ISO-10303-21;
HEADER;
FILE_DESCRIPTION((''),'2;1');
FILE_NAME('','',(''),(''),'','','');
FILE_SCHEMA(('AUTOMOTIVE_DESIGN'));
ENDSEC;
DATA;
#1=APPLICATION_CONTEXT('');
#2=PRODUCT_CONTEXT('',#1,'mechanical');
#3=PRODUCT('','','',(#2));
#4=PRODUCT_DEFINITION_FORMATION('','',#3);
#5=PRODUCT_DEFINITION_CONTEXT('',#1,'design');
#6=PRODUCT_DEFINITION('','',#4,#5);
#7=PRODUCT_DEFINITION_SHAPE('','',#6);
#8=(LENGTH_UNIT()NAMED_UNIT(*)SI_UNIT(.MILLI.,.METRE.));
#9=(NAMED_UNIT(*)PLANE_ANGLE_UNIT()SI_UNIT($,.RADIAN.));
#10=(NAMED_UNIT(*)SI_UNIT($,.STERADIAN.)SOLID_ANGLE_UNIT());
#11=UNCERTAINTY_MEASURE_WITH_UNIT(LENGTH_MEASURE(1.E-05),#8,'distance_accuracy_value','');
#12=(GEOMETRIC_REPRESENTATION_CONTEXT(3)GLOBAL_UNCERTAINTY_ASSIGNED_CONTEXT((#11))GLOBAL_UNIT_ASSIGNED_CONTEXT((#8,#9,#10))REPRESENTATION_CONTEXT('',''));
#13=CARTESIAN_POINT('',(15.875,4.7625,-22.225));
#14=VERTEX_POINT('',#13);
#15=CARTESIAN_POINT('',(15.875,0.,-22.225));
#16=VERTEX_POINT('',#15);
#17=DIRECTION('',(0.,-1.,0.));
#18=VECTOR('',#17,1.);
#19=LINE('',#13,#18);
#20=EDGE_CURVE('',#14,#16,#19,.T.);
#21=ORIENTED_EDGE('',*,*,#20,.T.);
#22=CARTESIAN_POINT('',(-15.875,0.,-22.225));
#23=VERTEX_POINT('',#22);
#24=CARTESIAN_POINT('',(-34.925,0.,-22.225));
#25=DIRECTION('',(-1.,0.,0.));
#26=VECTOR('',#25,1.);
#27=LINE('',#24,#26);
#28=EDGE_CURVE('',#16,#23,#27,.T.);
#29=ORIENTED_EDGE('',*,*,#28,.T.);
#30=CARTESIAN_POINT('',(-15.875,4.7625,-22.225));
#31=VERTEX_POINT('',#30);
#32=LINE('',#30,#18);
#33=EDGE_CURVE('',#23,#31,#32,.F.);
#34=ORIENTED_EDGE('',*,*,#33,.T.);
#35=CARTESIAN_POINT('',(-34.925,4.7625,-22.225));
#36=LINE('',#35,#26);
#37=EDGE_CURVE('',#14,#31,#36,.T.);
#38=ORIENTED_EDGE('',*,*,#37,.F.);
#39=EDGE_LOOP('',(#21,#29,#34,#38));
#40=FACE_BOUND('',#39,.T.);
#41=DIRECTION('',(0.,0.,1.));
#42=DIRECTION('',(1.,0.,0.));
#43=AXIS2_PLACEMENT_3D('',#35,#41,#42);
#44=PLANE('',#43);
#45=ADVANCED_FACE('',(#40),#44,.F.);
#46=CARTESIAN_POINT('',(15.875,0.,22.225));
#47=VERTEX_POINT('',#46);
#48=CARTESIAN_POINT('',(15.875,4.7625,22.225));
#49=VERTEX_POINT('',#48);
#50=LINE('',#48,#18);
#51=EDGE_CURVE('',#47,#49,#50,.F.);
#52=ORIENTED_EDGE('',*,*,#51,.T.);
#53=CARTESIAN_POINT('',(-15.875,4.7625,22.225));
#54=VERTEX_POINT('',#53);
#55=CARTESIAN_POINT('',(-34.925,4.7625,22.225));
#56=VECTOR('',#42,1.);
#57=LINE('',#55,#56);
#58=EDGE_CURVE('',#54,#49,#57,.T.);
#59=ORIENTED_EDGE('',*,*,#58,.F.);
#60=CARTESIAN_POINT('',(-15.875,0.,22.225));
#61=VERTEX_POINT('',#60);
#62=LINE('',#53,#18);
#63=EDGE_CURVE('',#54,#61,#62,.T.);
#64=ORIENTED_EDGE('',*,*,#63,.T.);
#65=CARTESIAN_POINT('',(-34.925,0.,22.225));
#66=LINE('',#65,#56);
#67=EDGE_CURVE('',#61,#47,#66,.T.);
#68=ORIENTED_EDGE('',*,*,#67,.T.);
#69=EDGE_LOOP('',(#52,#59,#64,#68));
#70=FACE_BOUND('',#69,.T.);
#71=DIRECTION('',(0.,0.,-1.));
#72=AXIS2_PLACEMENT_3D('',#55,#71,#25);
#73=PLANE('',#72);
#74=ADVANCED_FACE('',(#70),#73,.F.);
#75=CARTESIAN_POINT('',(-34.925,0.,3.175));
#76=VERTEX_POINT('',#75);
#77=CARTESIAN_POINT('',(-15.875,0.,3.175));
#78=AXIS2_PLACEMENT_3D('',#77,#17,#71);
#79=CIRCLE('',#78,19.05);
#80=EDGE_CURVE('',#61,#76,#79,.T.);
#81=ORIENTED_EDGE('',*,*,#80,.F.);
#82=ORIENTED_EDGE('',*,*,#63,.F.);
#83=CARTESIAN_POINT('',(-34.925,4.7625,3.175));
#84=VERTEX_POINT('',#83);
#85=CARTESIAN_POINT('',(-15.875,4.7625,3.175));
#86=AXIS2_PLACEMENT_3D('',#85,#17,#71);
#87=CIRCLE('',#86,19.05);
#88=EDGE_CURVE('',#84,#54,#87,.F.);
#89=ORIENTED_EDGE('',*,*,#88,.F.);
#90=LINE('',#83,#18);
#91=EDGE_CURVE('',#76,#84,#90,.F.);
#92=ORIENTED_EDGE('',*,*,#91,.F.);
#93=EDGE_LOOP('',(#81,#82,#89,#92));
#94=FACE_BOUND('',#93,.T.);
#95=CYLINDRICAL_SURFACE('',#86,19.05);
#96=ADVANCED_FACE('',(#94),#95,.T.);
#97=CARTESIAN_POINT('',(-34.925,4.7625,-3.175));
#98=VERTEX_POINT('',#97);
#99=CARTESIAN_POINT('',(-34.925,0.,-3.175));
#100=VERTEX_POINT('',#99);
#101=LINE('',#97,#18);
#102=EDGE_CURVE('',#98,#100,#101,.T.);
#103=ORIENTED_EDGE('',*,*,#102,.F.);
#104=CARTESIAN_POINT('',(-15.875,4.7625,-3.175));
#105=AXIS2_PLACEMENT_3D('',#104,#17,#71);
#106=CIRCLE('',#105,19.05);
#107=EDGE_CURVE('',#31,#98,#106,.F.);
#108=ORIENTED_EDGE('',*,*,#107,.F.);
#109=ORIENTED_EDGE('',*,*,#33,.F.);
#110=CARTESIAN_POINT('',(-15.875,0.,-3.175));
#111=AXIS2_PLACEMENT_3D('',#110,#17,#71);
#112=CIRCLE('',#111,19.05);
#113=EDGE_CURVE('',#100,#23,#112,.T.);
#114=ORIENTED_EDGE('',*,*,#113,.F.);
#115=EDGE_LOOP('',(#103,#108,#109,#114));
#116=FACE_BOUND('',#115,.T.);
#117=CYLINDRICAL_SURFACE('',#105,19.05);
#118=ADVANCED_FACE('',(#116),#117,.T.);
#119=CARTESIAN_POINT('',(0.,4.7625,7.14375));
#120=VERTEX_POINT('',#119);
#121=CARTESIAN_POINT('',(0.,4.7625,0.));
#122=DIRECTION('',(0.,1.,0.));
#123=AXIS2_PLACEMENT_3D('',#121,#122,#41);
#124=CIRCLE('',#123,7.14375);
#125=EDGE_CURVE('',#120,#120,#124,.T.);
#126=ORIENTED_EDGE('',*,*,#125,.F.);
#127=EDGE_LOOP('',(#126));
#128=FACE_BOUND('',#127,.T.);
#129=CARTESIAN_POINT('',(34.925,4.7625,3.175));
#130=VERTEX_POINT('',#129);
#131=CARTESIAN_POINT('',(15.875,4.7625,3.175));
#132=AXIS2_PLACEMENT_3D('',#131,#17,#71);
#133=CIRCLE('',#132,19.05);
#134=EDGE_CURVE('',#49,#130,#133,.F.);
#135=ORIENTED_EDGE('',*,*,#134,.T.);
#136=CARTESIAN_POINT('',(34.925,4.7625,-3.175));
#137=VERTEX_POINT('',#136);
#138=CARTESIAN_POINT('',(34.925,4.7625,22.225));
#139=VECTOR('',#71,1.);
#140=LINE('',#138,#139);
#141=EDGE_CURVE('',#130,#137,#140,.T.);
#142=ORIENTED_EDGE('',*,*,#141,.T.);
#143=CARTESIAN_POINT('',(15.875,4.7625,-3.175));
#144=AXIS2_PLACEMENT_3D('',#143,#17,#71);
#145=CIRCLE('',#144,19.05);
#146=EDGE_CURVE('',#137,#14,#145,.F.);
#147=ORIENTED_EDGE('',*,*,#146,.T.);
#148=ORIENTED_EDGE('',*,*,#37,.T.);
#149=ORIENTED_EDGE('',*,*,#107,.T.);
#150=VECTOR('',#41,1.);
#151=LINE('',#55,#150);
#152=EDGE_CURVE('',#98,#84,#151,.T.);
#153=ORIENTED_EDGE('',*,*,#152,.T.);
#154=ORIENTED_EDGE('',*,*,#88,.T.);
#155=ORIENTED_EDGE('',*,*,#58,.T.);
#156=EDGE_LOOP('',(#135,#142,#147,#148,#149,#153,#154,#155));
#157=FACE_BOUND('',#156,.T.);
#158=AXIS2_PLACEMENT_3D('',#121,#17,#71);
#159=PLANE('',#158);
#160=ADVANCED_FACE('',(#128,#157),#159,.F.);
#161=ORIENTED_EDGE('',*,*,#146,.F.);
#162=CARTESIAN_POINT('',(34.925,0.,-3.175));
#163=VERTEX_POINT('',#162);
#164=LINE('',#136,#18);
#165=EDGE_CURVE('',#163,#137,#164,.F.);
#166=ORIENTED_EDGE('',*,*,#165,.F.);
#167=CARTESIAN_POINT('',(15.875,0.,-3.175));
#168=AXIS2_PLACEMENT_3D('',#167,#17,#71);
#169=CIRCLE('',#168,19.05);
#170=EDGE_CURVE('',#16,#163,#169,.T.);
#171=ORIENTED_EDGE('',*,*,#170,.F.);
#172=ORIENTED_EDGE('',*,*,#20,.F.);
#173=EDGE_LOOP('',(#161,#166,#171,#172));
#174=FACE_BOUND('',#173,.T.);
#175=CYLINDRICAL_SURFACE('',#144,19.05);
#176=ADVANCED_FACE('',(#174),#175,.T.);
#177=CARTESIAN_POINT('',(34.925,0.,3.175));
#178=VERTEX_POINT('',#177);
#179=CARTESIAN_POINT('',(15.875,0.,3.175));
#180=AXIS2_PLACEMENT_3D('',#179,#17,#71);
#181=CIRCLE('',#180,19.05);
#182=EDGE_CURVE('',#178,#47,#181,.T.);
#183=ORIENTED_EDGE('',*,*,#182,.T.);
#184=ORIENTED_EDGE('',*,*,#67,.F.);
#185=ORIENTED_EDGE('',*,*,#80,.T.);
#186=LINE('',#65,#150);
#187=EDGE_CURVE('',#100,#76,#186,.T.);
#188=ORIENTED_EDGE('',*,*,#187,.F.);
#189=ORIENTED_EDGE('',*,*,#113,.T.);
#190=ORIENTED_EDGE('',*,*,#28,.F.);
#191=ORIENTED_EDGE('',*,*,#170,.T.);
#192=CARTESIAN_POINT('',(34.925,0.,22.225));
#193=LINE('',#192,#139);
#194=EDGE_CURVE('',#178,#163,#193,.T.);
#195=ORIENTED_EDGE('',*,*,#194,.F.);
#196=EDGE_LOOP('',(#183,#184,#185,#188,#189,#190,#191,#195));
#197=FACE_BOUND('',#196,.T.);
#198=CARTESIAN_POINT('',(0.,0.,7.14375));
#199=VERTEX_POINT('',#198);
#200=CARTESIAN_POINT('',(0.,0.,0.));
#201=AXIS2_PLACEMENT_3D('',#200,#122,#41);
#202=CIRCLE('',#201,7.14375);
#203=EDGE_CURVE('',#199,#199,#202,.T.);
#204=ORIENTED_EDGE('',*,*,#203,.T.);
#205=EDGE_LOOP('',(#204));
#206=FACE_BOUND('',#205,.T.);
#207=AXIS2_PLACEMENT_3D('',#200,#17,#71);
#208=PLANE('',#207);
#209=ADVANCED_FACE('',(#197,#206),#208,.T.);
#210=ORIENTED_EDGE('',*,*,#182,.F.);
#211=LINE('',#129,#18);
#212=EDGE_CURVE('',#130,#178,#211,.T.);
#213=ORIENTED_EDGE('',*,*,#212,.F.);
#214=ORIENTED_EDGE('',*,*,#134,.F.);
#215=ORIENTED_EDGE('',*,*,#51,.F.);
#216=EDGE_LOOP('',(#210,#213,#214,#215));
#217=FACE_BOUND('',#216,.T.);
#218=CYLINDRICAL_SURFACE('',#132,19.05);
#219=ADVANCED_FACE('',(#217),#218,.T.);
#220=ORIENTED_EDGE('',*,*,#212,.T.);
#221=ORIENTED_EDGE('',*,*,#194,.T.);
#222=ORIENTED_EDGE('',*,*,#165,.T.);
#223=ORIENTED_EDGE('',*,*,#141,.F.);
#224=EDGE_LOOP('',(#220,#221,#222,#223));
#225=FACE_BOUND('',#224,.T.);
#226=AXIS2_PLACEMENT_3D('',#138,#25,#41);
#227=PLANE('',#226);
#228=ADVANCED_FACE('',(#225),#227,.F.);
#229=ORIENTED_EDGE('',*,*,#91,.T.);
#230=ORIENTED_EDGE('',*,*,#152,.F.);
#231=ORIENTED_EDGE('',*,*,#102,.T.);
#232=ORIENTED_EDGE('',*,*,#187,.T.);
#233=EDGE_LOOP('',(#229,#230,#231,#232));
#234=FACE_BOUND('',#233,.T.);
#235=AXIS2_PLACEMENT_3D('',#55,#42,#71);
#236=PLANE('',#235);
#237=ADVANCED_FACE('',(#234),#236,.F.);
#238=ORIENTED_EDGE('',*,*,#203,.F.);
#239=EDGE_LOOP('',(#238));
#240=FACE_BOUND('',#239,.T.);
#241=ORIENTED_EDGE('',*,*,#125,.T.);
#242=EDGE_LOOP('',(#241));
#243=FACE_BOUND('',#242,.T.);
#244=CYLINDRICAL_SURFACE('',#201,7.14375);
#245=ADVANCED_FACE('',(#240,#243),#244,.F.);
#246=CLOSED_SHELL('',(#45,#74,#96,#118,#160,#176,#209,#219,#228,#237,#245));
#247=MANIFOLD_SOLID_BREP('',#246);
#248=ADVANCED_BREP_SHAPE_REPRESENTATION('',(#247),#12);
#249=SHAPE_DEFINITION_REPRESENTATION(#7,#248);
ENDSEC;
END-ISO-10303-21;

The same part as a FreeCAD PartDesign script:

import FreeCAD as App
import Part
import Sketcher
Q = App.Units.Quantity


def edges_at(feature, points):
    """Names of the edges that pass closest to the given points."""
    edges = feature.Shape.Edges
    near = lambda p: min(range(len(edges)), key=lambda i: edges[i].distToShape(Part.Vertex(*p))[0])
    return sorted({f"Edge{near(p) + 1}" for p in points})


def add_polygon(sketch, points):
    """Adds a closed chain of lines whose ends are joined by coincident constraints."""
    first, n = sketch.GeometryCount, len(points)
    for a, b in zip(points, points[1:] + points[:1]):
        sketch.addGeometry(Part.LineSegment(App.Vector(*a, 0), App.Vector(*b, 0)), False)
    for i in range(n):
        sketch.addConstraint(Sketcher.Constraint("Coincident", first + i, 2, first + (i + 1) % n, 1))

doc = App.newDocument("Part")
params = doc.addObject("Spreadsheet::Sheet", "Params")
for row, (alias, value) in enumerate([
    ("sketch1_width", "2.75 in"),
    ("sketch1_height", "1.75 in"),
    ("pad1_length", "0.1875 in"),
    ("sketch2_diameter", "0.5625 in"),
    ("fillet_radius", "0.75 in"),
    ("fillet2_radius", "0.75 in"),
], start=1):
    params.set(f"A{row}", alias)
    params.set(f"B{row}", "=" + value)
    params.setAlias(f"B{row}", alias)

body = doc.addObject("PartDesign::Body", "Body")

# Sketch on XZ plane
sketch1 = body.newObject("Sketcher::SketchObject", "Sketch")
sketch1.AttachmentSupport = (doc.getObject("XZ_Plane"), [""])
sketch1.MapMode = "FlatFace"
add_polygon(sketch1, [(-35, -22), (-35, 22), (35, 22), (35, -22)])  # lines 0-3
sketch1.addConstraint([
    Sketcher.Constraint("Vertical", 0),
    Sketcher.Constraint("Horizontal", 1),
    Sketcher.Constraint("Vertical", 2),
    Sketcher.Constraint("Horizontal", 3),
    Sketcher.Constraint("Symmetric", 0, 2, 2, 2, -1, 1),
    Sketcher.Constraint("DistanceX", 1, 1, 1, 2, Q("2.75 in")),
    Sketcher.Constraint("DistanceY", 0, 1, 0, 2, Q("1.75 in")),
])
sketch1.setExpression("Constraints[9]", "Params.sketch1_width")
sketch1.setExpression("Constraints[10]", "Params.sketch1_height")
pad1 = body.newObject("PartDesign::Pad", "Pad")
pad1.Profile = sketch1
pad1.setExpression("Length", "Params.pad1_length")
pad1.Reversed = True

# Sketch on XZ plane
sketch2 = body.newObject("Sketcher::SketchObject", "Sketch001")
sketch2.AttachmentSupport = (doc.getObject("XZ_Plane"), [""])
sketch2.MapMode = "FlatFace"
sketch2.AttachmentOffset = App.Placement(App.Vector(0, 0, -0.1875 * 25.4), App.Rotation())
sketch2.addGeometry(Part.Circle(App.Vector(0, 0, 0), App.Vector(0, 0, 1), 7), False)
sketch2.addConstraint([
    Sketcher.Constraint("Coincident", 0, 3, -1, 1),
    Sketcher.Constraint("Diameter", 0, Q("0.5625 in")),
])
sketch2.setExpression("Constraints[1]", "Params.sketch2_diameter")
pocket1 = body.newObject("PartDesign::Pocket", "Pocket")
pocket1.Profile = sketch2
pocket1.Type = "ThroughAll"
pocket1.Reversed = True
doc.recompute()

fillet = body.newObject("PartDesign::Fillet", "Fillet")
fillet.Base = (pocket1, edges_at(pocket1, [(-34.925, 2.381, 22.225), (-34.925, 2.381, -22.225)]))
fillet.setExpression("Radius", "Params.fillet_radius")
doc.recompute()

fillet2 = body.newObject("PartDesign::Fillet", "Fillet001")
fillet2.Base = (fillet, edges_at(fillet, [(34.925, 2.381, 22.225), (34.925, 2.381, -22.225)]))
fillet2.setExpression("Radius", "Params.fillet2_radius")

doc.recompute()
